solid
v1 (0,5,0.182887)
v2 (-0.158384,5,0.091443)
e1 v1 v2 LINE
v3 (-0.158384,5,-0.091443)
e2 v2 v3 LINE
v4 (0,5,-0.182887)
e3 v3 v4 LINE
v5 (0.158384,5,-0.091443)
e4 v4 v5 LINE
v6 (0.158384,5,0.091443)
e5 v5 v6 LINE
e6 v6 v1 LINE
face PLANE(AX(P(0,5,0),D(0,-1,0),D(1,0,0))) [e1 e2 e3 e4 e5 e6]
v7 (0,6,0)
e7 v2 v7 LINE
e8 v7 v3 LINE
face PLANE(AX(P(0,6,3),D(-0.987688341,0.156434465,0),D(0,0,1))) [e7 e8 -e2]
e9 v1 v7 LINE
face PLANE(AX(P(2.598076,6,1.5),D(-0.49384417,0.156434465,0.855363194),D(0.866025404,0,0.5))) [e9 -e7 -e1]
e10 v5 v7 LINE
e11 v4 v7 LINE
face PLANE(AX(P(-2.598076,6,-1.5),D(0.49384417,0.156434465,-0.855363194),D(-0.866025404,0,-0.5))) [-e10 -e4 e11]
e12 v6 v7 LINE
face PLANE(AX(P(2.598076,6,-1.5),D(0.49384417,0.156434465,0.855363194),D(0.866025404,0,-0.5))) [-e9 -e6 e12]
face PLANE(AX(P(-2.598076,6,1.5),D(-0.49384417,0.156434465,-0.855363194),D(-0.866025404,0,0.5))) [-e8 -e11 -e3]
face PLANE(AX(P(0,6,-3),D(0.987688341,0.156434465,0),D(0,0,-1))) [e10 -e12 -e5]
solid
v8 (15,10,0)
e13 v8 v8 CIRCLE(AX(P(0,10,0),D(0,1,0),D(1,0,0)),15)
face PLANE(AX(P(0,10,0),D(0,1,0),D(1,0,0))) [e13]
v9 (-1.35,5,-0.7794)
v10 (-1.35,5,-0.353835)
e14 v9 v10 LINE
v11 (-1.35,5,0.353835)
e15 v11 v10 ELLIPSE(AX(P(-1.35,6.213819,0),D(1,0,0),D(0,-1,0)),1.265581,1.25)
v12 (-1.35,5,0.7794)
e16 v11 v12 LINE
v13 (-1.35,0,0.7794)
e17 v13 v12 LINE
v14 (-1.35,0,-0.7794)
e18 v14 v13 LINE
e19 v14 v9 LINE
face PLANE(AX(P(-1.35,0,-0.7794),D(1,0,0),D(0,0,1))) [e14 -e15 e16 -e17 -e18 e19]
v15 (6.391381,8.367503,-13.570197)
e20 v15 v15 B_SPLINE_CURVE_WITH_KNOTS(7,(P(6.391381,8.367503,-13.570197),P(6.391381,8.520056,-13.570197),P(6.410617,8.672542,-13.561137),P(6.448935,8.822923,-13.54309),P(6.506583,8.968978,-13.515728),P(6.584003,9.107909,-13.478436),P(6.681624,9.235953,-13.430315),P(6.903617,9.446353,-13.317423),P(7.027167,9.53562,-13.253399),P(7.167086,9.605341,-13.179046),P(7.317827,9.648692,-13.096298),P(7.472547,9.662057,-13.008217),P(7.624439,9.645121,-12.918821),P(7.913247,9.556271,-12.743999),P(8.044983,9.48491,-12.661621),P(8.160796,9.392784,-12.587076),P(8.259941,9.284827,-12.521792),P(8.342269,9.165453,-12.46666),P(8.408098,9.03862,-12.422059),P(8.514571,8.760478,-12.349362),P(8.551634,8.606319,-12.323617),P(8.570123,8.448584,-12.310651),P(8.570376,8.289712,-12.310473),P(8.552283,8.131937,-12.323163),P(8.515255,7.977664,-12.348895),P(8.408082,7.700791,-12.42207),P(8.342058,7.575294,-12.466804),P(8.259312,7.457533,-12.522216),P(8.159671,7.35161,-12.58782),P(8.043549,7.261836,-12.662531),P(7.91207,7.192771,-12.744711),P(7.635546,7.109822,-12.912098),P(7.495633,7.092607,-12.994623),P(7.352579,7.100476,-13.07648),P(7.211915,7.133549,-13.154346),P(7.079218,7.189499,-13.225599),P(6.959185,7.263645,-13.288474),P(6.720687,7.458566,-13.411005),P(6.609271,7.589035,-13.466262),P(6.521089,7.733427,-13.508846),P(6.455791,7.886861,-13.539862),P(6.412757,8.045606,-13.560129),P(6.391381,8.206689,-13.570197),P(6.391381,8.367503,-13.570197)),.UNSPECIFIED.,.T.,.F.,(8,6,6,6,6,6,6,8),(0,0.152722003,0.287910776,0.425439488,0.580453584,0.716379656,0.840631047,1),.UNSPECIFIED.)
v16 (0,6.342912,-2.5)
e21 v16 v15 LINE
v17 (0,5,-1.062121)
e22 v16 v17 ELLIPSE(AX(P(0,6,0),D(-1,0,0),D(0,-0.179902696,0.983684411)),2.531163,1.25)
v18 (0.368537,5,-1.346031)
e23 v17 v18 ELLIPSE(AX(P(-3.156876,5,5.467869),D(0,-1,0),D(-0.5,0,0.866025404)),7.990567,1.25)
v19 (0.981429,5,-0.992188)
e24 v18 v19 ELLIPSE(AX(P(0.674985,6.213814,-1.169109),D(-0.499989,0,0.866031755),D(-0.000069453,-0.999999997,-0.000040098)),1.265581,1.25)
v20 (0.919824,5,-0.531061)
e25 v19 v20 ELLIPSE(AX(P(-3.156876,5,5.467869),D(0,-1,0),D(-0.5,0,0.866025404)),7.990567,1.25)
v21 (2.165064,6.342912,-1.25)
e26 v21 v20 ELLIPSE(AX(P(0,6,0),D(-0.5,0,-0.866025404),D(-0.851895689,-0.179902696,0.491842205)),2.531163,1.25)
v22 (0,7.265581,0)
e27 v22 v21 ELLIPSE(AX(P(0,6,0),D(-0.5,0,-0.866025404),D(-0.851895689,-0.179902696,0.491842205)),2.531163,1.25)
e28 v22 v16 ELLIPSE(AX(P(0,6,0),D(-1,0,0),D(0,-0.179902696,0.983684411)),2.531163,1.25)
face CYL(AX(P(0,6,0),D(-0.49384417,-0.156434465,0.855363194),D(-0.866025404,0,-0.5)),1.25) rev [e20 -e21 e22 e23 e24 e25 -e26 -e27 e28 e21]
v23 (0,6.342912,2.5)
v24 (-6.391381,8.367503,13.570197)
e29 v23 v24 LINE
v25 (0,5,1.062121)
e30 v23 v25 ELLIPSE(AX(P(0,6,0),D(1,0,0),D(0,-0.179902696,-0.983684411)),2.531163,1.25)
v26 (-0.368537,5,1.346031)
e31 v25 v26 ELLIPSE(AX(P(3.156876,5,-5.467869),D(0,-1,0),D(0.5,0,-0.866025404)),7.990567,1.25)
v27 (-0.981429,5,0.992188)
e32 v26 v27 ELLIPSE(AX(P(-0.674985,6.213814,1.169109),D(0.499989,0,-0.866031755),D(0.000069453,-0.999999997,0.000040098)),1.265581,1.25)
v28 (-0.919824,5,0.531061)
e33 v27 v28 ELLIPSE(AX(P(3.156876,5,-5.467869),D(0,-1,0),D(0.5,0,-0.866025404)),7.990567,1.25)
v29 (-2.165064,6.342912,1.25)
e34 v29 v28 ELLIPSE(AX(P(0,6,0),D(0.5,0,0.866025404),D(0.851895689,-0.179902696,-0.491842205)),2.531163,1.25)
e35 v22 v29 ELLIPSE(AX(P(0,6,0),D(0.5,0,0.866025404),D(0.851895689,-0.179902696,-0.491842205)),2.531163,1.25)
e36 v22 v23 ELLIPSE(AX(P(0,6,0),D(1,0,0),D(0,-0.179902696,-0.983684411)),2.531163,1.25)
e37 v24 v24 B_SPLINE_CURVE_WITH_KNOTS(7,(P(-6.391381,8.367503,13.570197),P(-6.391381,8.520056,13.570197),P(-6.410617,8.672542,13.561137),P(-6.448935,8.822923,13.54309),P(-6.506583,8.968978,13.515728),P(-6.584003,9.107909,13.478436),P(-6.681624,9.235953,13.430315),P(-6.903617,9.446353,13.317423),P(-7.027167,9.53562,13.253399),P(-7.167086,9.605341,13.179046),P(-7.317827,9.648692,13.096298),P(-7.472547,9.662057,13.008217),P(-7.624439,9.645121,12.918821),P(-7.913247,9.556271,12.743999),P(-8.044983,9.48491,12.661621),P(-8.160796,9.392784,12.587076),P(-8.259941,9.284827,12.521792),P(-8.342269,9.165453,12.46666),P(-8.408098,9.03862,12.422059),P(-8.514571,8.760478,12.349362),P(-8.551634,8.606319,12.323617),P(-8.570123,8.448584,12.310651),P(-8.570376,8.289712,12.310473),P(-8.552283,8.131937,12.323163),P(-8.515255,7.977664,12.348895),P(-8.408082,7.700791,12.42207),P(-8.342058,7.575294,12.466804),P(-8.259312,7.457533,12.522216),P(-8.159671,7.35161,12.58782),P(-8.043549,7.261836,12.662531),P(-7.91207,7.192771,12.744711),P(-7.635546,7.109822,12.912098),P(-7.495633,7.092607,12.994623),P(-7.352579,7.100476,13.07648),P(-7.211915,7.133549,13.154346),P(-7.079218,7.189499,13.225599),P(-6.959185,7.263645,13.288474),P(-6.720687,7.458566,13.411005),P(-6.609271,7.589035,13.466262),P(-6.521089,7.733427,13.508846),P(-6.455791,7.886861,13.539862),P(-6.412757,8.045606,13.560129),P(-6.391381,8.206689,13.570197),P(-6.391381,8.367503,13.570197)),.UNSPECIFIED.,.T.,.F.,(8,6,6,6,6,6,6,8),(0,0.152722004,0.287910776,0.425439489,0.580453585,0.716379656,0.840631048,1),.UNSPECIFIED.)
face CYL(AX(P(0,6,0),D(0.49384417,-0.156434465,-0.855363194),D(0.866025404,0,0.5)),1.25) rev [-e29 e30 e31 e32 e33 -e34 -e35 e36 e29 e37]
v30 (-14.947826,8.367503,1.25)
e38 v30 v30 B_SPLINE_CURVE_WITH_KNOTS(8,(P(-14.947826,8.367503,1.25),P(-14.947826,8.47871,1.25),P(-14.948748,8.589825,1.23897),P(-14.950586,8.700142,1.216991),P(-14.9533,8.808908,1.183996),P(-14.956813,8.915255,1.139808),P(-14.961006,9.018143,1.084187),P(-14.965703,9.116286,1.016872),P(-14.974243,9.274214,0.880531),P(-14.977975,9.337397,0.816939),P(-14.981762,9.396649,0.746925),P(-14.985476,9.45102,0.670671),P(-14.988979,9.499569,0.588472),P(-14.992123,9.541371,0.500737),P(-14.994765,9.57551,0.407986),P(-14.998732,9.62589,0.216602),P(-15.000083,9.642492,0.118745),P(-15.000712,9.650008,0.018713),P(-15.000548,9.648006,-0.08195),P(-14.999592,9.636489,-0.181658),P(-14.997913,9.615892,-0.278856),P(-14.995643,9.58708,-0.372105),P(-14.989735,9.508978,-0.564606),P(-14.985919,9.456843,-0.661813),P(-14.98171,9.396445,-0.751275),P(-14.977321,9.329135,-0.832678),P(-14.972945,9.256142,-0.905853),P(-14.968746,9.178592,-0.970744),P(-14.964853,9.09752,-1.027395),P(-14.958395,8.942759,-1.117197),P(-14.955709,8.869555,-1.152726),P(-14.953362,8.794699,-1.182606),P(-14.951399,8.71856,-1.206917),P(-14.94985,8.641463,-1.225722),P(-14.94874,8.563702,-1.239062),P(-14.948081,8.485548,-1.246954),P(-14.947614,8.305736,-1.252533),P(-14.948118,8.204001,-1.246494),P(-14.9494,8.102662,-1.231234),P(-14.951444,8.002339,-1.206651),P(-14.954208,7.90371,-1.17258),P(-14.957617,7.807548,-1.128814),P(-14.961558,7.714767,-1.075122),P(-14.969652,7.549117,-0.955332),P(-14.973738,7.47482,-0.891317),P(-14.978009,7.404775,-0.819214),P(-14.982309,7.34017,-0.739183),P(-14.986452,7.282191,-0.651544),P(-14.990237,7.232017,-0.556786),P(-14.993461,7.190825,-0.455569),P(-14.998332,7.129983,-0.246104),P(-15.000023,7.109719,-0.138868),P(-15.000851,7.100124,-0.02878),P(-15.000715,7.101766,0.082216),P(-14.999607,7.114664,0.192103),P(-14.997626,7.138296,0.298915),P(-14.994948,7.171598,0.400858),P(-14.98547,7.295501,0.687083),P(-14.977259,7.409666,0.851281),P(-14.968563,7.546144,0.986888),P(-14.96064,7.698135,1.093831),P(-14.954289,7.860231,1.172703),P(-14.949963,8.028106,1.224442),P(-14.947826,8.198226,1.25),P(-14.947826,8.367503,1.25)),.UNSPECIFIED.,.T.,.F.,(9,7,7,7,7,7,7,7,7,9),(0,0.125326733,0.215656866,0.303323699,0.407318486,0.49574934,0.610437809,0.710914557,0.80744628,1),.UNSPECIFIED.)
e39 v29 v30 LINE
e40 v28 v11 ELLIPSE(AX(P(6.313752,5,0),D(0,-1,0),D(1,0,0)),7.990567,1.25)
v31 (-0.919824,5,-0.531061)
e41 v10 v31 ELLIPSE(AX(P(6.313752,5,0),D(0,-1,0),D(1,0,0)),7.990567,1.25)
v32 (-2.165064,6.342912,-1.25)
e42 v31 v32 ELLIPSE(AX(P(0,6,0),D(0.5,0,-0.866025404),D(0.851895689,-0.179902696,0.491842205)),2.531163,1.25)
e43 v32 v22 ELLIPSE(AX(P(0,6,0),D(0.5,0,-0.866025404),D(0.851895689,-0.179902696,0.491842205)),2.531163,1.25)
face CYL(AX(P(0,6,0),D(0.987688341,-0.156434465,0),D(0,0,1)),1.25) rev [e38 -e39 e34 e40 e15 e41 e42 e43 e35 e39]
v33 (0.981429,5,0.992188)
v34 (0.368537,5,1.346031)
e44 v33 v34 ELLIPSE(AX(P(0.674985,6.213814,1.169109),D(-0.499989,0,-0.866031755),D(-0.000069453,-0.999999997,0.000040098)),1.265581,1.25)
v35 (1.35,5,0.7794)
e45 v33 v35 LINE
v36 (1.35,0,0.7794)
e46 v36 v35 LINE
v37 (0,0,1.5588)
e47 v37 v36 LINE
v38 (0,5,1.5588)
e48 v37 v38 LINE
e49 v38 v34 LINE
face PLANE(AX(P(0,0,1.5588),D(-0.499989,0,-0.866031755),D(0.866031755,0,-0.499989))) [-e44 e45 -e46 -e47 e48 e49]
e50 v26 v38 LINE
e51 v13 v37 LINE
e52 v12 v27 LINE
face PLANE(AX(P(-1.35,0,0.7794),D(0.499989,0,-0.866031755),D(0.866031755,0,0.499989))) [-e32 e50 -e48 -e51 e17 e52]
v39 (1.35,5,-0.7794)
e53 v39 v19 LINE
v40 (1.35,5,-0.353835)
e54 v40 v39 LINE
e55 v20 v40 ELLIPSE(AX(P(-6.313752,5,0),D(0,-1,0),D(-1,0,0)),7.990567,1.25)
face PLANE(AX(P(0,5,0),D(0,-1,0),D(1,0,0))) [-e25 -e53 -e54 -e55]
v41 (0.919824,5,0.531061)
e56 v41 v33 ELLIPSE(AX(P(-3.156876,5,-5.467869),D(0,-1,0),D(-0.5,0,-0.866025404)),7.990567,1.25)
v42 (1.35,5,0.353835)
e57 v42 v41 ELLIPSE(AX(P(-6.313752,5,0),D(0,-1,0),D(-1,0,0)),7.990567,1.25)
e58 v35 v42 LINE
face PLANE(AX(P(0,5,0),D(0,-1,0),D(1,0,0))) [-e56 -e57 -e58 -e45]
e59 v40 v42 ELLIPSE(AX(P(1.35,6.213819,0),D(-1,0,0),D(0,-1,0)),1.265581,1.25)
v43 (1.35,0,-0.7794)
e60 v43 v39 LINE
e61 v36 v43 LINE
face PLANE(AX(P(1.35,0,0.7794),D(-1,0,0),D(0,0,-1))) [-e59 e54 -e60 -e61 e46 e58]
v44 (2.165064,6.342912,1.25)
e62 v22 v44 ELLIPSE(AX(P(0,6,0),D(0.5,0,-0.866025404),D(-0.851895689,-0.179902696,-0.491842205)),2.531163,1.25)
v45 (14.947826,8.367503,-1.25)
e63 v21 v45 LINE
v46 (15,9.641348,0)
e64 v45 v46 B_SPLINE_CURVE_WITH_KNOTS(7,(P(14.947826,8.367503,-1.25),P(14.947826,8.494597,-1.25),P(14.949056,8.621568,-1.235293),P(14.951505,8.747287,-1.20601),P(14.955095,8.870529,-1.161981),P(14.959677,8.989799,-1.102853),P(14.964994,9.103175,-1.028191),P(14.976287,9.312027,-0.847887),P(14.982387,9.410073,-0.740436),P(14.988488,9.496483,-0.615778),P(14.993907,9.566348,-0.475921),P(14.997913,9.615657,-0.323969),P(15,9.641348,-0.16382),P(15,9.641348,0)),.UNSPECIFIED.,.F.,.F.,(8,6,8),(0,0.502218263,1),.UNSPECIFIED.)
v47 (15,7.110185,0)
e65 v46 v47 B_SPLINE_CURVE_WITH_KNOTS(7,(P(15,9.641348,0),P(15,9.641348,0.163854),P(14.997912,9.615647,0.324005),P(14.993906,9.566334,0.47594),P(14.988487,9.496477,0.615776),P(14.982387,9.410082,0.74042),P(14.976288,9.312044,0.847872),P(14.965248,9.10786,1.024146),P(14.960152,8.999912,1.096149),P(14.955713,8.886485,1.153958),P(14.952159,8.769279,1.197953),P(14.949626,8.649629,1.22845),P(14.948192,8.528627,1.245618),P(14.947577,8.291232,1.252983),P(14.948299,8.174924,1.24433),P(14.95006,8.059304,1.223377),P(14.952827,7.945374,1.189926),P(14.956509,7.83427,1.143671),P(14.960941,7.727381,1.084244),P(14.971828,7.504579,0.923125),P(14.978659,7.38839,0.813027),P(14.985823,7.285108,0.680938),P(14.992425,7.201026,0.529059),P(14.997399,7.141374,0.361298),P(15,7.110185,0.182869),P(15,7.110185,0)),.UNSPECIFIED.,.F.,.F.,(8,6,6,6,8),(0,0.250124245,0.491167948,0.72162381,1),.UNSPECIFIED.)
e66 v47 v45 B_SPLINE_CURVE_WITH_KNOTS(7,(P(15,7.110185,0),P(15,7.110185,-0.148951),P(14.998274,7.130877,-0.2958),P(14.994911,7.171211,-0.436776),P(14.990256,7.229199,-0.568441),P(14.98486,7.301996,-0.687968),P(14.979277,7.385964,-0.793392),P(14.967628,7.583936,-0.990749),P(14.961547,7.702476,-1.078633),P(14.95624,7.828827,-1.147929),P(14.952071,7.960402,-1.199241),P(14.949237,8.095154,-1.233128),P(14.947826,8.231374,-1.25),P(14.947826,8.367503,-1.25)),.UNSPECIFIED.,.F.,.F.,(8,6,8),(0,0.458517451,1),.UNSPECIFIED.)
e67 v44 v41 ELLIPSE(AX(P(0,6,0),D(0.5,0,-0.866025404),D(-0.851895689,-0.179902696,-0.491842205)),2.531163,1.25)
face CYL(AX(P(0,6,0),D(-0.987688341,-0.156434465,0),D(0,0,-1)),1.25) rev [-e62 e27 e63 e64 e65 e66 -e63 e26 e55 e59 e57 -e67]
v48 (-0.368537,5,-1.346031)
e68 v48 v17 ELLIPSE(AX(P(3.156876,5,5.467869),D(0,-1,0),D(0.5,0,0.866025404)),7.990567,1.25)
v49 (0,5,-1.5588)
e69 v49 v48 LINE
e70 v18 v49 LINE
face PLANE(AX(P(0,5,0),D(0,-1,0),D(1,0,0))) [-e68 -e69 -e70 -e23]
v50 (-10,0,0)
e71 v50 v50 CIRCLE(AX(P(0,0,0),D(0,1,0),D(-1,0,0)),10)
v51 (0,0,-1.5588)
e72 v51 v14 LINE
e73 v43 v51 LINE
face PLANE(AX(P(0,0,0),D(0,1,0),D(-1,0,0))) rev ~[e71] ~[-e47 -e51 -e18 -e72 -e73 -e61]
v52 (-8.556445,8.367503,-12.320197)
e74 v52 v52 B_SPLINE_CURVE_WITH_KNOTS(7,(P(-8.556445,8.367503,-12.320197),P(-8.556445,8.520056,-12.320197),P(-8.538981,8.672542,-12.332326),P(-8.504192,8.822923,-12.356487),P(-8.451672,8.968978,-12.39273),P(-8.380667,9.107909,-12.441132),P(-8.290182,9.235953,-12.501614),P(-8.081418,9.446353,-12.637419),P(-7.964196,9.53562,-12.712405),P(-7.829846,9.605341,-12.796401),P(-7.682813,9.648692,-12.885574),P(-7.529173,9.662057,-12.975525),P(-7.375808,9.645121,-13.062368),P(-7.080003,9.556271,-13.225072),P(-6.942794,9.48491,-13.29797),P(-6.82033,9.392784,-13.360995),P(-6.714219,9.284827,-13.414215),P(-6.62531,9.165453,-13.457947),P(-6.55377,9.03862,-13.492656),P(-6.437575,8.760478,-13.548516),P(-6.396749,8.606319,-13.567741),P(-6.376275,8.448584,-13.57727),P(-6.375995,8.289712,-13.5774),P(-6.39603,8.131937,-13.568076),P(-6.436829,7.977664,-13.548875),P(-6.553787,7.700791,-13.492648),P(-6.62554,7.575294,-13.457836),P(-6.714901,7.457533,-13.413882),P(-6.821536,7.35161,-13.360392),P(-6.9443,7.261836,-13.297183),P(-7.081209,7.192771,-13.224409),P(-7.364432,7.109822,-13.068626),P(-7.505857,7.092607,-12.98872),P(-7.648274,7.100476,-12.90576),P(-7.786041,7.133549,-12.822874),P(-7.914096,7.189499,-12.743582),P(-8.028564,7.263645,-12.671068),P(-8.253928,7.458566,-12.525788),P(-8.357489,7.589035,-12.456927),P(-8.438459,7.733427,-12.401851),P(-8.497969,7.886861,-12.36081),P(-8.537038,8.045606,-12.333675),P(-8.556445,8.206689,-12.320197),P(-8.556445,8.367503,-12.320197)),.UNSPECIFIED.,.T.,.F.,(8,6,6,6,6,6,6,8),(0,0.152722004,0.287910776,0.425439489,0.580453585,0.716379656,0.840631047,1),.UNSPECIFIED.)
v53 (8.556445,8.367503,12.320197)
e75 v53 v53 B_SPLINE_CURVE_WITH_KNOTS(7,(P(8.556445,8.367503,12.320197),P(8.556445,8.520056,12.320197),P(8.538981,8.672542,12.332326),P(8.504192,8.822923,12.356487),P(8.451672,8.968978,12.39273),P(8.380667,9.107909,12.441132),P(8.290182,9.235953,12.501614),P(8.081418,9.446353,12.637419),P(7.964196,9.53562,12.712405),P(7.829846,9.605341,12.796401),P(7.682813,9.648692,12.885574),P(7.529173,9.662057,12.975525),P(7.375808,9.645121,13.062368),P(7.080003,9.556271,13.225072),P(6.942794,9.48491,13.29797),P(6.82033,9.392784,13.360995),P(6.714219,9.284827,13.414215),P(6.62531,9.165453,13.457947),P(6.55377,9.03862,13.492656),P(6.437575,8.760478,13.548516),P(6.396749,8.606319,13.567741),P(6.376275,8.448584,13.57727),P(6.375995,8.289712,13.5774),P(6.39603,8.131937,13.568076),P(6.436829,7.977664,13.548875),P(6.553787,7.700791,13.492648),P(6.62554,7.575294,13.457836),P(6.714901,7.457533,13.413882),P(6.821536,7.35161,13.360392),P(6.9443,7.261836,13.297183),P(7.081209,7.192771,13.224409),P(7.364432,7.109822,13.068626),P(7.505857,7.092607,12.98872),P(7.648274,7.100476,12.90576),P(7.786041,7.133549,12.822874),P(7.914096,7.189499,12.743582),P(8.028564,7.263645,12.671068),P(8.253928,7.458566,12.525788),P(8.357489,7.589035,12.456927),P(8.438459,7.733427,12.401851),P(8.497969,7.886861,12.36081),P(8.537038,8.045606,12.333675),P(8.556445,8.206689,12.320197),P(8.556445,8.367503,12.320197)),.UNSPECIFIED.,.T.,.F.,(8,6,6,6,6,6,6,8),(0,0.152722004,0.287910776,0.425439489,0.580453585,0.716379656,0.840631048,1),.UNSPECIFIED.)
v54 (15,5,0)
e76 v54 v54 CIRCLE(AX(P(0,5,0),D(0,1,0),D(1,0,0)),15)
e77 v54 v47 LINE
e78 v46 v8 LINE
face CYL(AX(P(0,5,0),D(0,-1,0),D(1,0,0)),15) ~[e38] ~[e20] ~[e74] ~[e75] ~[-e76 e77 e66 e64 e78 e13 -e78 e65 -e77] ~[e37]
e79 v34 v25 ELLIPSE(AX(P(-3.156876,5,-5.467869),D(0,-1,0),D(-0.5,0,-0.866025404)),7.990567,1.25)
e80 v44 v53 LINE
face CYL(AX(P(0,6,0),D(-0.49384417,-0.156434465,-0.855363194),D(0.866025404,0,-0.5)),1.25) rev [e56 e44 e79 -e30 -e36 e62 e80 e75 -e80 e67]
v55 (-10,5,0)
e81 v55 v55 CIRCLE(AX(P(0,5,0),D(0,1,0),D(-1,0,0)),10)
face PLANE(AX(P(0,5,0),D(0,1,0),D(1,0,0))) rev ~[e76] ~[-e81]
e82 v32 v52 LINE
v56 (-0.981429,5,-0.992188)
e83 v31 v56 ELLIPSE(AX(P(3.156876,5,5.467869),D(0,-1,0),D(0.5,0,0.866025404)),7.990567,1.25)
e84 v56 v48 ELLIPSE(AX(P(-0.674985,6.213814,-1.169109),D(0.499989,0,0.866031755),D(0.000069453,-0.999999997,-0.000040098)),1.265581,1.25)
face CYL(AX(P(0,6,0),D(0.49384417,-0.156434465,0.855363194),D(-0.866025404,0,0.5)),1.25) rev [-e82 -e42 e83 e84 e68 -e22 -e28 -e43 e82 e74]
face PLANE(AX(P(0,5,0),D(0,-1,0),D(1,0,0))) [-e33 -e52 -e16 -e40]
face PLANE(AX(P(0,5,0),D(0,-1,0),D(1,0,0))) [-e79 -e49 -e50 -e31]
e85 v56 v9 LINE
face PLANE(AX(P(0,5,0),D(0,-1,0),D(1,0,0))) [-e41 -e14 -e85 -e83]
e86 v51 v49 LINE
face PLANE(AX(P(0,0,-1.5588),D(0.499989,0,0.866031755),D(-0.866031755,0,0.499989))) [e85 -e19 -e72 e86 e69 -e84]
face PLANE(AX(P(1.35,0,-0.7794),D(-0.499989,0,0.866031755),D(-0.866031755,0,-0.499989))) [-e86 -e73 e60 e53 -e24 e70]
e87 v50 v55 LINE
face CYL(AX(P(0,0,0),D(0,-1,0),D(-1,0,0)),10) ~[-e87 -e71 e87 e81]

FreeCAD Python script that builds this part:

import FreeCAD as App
import Part
import Sketcher
Q = App.Units.Quantity


def add_polygon(sketch, points):
    """Adds a closed chain of lines whose ends are joined by coincident constraints."""
    first, n = sketch.GeometryCount, len(points)
    for a, b in zip(points, points[1:] + points[:1]):
        sketch.addGeometry(Part.LineSegment(App.Vector(*a, 0), App.Vector(*b, 0)), False)
    for i in range(n):
        sketch.addConstraint(Sketcher.Constraint("Coincident", first + i, 2, first + (i + 1) % n, 1))

doc = App.newDocument("Part")
params = doc.addObject("Spreadsheet::Sheet", "Params")
for row, (alias, value) in enumerate([
    ("sketch1_diameter", "20 mm"),
    ("pad1_length", "5 mm"),
    ("sketch2_diameter", "30 mm"),
    ("pad2_length", "5 mm"),
    ("pocket1_length", "5 mm"),
    ("sketch4_diameter", "2.5 mm"),
], start=1):
    params.set(f"A{row}", alias)
    params.set(f"B{row}", "=" + value)
    params.setAlias(f"B{row}", alias)

body = doc.addObject("PartDesign::Body", "Body")
body.AllowCompound = True

sketch1 = doc.addObject("Sketcher::SketchObject", "Sketch")
body.addObject(sketch1)
sketch1.AttachmentSupport = (doc.XZ_Plane, [""])
sketch1.MapMode = "FlatFace"
sketch1.addGeometry(Part.Circle(App.Vector(0, 0, 0), App.Vector(0, 0, 1), 10), False)
sketch1.addConstraint([
    Sketcher.Constraint("Coincident", 0, 3, -1, 1),
    Sketcher.Constraint("Diameter", 0, 20.0),
])
sketch1.setExpression("Constraints[1]", "Params.sketch1_diameter")
pad1 = doc.addObject("PartDesign::Pad", "Pad")
body.addObject(pad1)
pad1.Profile = sketch1
pad1.setExpression("Length", "Params.pad1_length")
pad1.Reversed = True

sketch2 = doc.addObject("Sketcher::SketchObject", "Sketch001")
body.addObject(sketch2)
sketch2.AttachmentSupport = (doc.XZ_Plane, [""])
sketch2.MapMode = "FlatFace"
sketch2.AttachmentOffset = App.Placement(App.Vector(0, 0, -5), App.Rotation())
sketch2.addGeometry(Part.Circle(App.Vector(0, 0, 0), App.Vector(0, 0, 1), 15), False)
sketch2.addConstraint([
    Sketcher.Constraint("Coincident", 0, 3, -1, 1),
    Sketcher.Constraint("Diameter", 0, 30.0),
])
sketch2.setExpression("Constraints[1]", "Params.sketch2_diameter")
pad2 = doc.addObject("PartDesign::Pad", "Pad001")
body.addObject(pad2)
pad2.Profile = sketch2
pad2.setExpression("Length", "Params.pad2_length")
pad2.Reversed = True

sketch3 = doc.addObject("Sketcher::SketchObject", "Sketch002")
body.addObject(sketch3)
sketch3.AttachmentSupport = (doc.XZ_Plane, [""])
sketch3.MapMode = "FlatFace"
add_polygon(sketch3, [(1.35, 0.7794), (0, 1.5588), (-1.35, 0.7794), (-1.35, -0.7794), (0, -1.5588), (1.35, -0.7794)])
sketch3.addConstraint([
    Sketcher.Constraint("Vertical", 2),
    Sketcher.Constraint("Vertical", 5),
    Sketcher.Constraint("Symmetric", 0, 2, 3, 2, -1, 1),
    Sketcher.Constraint("Symmetric", 1, 2, 4, 2, -1, 1),
    Sketcher.Constraint("PointOnObject", 0, 2, -2),
    Sketcher.Constraint("Parallel", 0, 3),
    Sketcher.Constraint("Horizontal", 2, 2, 4, 2),
    Sketcher.Constraint("DistanceX", 2, 2, 4, 2, 2.7),
    Sketcher.Constraint("Angle", 0, Q("150.0007 deg")),
    Sketcher.Constraint("DistanceY", 2, 2, 2, 1, 1.5588),
])
pocket1 = doc.addObject("PartDesign::Pocket", "Pocket")
body.addObject(pocket1)
pocket1.Profile = sketch3
pocket1.setExpression("Length", "Params.pocket1_length")

sketch4 = doc.addObject("Sketcher::SketchObject", "Sketch003")
body.addObject(sketch4)
sketch4.Placement = App.Placement(App.Vector(0, 6, 3), App.Rotation(App.Vector(0, 0, 1), App.Vector(0.156434465, 0.987688341, 0), App.Vector(-0.987688341, 0.156434465, 0), "ZXY"))
sketch4.addGeometry(Part.Circle(App.Vector(-3, 0, 0), App.Vector(0, 0, 1), 1.25), False)
sketch4.addConstraint([
    Sketcher.Constraint("PointOnObject", 0, 3, -1),
    Sketcher.Constraint("Diameter", 0, 2.5),
    Sketcher.Constraint("DistanceX", 0, 3, -1, 1, 3.0),
])
sketch4.setExpression("Constraints[1]", "Params.sketch4_diameter")
pocket2 = doc.addObject("PartDesign::Pocket", "Pocket001")
body.addObject(pocket2)
pocket2.Profile = sketch4
pocket2.Type = "ThroughAll"
pocket2.Reversed = True
doc.recompute()

polarpattern = doc.addObject("PartDesign::PolarPattern", "PolarPattern")
body.addObject(polarpattern)
polarpattern.Originals = [pocket2]
polarpattern.Axis = (doc.Y_Axis, [""])
polarpattern.Angle = 360
polarpattern.Occurrences = 6
body.Tip = polarpattern

doc.recompute()
